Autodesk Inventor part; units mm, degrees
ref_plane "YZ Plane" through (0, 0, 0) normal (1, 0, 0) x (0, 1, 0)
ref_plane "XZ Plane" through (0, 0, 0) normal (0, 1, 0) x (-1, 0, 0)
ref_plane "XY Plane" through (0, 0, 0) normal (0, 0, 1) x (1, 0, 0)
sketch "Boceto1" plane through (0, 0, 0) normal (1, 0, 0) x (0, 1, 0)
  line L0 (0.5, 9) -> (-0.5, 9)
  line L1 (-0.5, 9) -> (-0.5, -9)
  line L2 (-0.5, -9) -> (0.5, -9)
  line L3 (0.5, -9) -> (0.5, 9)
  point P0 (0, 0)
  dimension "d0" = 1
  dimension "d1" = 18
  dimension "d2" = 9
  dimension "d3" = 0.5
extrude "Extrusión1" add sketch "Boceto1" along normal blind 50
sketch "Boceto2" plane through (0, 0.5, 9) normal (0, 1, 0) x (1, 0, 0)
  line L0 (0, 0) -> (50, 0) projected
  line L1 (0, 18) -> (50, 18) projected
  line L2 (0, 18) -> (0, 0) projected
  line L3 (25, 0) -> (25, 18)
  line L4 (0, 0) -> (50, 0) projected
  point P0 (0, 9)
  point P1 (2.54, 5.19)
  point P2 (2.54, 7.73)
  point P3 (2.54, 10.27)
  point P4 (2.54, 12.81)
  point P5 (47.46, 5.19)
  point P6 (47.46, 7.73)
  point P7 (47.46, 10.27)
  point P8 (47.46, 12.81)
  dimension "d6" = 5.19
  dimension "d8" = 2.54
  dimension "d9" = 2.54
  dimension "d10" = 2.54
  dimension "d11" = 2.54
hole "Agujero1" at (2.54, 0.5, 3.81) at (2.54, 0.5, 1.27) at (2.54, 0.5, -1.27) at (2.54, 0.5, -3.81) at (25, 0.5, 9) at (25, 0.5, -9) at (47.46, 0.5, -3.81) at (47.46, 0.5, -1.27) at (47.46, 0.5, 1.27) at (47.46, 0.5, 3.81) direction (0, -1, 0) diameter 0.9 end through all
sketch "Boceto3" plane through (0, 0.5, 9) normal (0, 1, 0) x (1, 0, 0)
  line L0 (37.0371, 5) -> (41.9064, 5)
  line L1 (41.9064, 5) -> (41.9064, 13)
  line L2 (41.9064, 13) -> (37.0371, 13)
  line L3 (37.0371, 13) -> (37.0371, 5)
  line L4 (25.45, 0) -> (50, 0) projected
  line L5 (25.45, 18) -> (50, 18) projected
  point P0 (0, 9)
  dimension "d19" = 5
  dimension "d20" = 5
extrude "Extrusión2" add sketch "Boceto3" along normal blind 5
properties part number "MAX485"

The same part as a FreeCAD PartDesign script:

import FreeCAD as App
import Part
import Sketcher
from FreeCAD import Vector
Q = App.Units.Quantity


def add_polygon(sketch, points):
    """Adds a closed chain of lines whose ends are joined by coincident constraints."""
    first, n = sketch.GeometryCount, len(points)
    for a, b in zip(points, points[1:] + points[:1]):
        sketch.addGeometry(Part.LineSegment(App.Vector(*a, 0), App.Vector(*b, 0)), False)
    for i in range(n):
        sketch.addConstraint(Sketcher.Constraint("Coincident", first + i, 2, first + (i + 1) % n, 1))

doc = App.newDocument("Part")
params = doc.addObject("Spreadsheet::Sheet", "Params")
for row, (alias, value) in enumerate([
    ("sketch1_width", "1 mm"),
    ("sketch1_height", "18 mm"),
    ("pad1_length", "50 mm"),
    ("sketch2_diameter", "0.9 mm"),
    ("hole_diameter", "0.9 mm"),
    ("sketch3_height", "8 mm"),
    ("pad2_length", "5 mm"),
], start=1):
    params.set(f"A{row}", alias)
    params.set(f"B{row}", "=" + value)
    params.setAlias(f"B{row}", alias)

body = doc.addObject("PartDesign::Body", "Body")

# Sketch on YZ plane
sketch1 = doc.addObject("Sketcher::SketchObject", "Sketch")
body.addObject(sketch1)
sketch1.AttachmentSupport = (doc.YZ_Plane, [""])
sketch1.MapMode = "FlatFace"
add_polygon(sketch1, [(0.5, -9), (0.5, 9), (-0.5, 9), (-0.5, -9)])  # lines 0-3
sketch1.addConstraint([
    Sketcher.Constraint("Vertical", 0),
    Sketcher.Constraint("Horizontal", 1),
    Sketcher.Constraint("Vertical", 2),
    Sketcher.Constraint("Horizontal", 3),
    Sketcher.Constraint("Symmetric", 0, 2, 2, 2, -1, 1),
    Sketcher.Constraint("DistanceX", 1, 2, 1, 1, Q("1 mm")),
    Sketcher.Constraint("DistanceY", 0, 1, 0, 2, Q("18 mm")),
])
sketch1.setExpression("Constraints[9]", "Params.sketch1_width")
sketch1.setExpression("Constraints[10]", "Params.sketch1_height")
pad1 = doc.addObject("PartDesign::Pad", "Pad")
body.addObject(pad1)
pad1.Profile = sketch1
pad1.setExpression("Length", "Params.pad1_length")

# Sketch on XZ plane
sketch2 = doc.addObject("Sketcher::SketchObject", "Sketch001")
body.addObject(sketch2)
sketch2.AttachmentSupport = (doc.XZ_Plane, [""])
sketch2.MapMode = "FlatFace"
sketch2.AttachmentOffset = App.Placement(Vector(0, 0, -0.5), App.Rotation())
sketch2.addGeometry([
    Part.Circle(Vector(2.54, 3.81, 0), Vector(0, 0, 1), 0.45),  # 0
    Part.Circle(Vector(2.54, 1.27, 0), Vector(0, 0, 1), 0.45),  # 1
    Part.Circle(Vector(2.54, -1.27, 0), Vector(0, 0, 1), 0.45),  # 2
    Part.Circle(Vector(2.54, -3.81, 0), Vector(0, 0, 1), 0.45),  # 3
    Part.Circle(Vector(25, 9, 0), Vector(0, 0, 1), 0.45),  # 4
    Part.Circle(Vector(25, -9, 0), Vector(0, 0, 1), 0.45),  # 5
    Part.Circle(Vector(47.46, -3.81, 0), Vector(0, 0, 1), 0.45),  # 6
    Part.Circle(Vector(47.46, -1.27, 0), Vector(0, 0, 1), 0.45),  # 7
    Part.Circle(Vector(47.46, 1.27, 0), Vector(0, 0, 1), 0.45),  # 8
    Part.Circle(Vector(47.46, 3.81, 0), Vector(0, 0, 1), 0.45),  # 9
], False)
sketch2.addConstraint([
    Sketcher.Constraint("Equal", 0, 1),
    Sketcher.Constraint("Equal", 1, 2),
    Sketcher.Constraint("Equal", 2, 3),
    Sketcher.Constraint("Equal", 3, 4),
    Sketcher.Constraint("Equal", 4, 5),
    Sketcher.Constraint("Equal", 5, 6),
    Sketcher.Constraint("Equal", 6, 7),
    Sketcher.Constraint("Equal", 7, 8),
    Sketcher.Constraint("Equal", 8, 9),
    Sketcher.Constraint("Symmetric", 1, 3, 2, 3, -1),
    Sketcher.Constraint("Symmetric", 0, 3, 3, 3, -1),
    Sketcher.Constraint("Symmetric", 4, 3, 5, 3, -1),
    Sketcher.Constraint("Symmetric", 7, 3, 8, 3, -1),
    Sketcher.Constraint("Symmetric", 6, 3, 9, 3, -1),
    Sketcher.Constraint("Horizontal", 3, 3, 6, 3),
    Sketcher.Constraint("Horizontal", 2, 3, 7, 3),
    Sketcher.Constraint("Vertical", 0, 3, 1, 3),
    Sketcher.Constraint("Vertical", 6, 3, 7, 3),
    Sketcher.Constraint("Diameter", 0, Q("0.9 mm")),
    Sketcher.Constraint("DistanceX", -1, 1, 4, 3, Q("25 mm")),
    Sketcher.Constraint("DistanceY", -1, 1, 4, 3, Q("9 mm")),
    Sketcher.Constraint("DistanceX", -1, 1, 0, 3, Q("2.54 mm")),
    Sketcher.Constraint("DistanceY", -1, 1, 0, 3, Q("3.81 mm")),
    Sketcher.Constraint("DistanceY", -1, 1, 1, 3, Q("1.27 mm")),
    Sketcher.Constraint("DistanceX", -1, 1, 6, 3, Q("47.46 mm")),
])
sketch2.setExpression("Constraints[18]", "Params.sketch2_diameter")
doc.recompute()
hole = doc.addObject("PartDesign::Hole", "Hole")
body.addObject(hole)
hole.Profile = sketch2
hole.ThreadType = "None"
hole.setExpression("Diameter", "Params.hole_diameter")
hole.DepthType = "ThroughAll"
hole.Reversed = True

# Sketch on XZ plane
sketch3 = doc.addObject("Sketcher::SketchObject", "Sketch002")
body.addObject(sketch3)
sketch3.AttachmentSupport = (doc.XZ_Plane, [""])
sketch3.MapMode = "FlatFace"
sketch3.AttachmentOffset = App.Placement(Vector(0, 0, -0.5), App.Rotation())
add_polygon(sketch3, [(37.0371, -4), (37.0371, 4), (41.9064, 4), (41.9064, -4)])  # lines 0-3
sketch3.addConstraint([
    Sketcher.Constraint("Vertical", 0),
    Sketcher.Constraint("Horizontal", 1),
    Sketcher.Constraint("Vertical", 2),
    Sketcher.Constraint("Horizontal", 3),
    Sketcher.Constraint("DistanceY", 0, 1, 0, 2, Q("8 mm")),
    Sketcher.Constraint("DistanceY", -1, 1, 0, 2, Q("4 mm")),
    Sketcher.Constraint("DistanceX", 1, 1, 1, 2, Q("4.8693 mm")),
    Sketcher.Constraint("DistanceX", -1, 1, 0, 2, Q("37.037 mm")),
])
sketch3.setExpression("Constraints[8]", "Params.sketch3_height")
pad2 = doc.addObject("PartDesign::Pad", "Pad001")
body.addObject(pad2)
pad2.Profile = sketch3
pad2.setExpression("Length", "Params.pad2_length")
pad2.Reversed = True

doc.recompute()
